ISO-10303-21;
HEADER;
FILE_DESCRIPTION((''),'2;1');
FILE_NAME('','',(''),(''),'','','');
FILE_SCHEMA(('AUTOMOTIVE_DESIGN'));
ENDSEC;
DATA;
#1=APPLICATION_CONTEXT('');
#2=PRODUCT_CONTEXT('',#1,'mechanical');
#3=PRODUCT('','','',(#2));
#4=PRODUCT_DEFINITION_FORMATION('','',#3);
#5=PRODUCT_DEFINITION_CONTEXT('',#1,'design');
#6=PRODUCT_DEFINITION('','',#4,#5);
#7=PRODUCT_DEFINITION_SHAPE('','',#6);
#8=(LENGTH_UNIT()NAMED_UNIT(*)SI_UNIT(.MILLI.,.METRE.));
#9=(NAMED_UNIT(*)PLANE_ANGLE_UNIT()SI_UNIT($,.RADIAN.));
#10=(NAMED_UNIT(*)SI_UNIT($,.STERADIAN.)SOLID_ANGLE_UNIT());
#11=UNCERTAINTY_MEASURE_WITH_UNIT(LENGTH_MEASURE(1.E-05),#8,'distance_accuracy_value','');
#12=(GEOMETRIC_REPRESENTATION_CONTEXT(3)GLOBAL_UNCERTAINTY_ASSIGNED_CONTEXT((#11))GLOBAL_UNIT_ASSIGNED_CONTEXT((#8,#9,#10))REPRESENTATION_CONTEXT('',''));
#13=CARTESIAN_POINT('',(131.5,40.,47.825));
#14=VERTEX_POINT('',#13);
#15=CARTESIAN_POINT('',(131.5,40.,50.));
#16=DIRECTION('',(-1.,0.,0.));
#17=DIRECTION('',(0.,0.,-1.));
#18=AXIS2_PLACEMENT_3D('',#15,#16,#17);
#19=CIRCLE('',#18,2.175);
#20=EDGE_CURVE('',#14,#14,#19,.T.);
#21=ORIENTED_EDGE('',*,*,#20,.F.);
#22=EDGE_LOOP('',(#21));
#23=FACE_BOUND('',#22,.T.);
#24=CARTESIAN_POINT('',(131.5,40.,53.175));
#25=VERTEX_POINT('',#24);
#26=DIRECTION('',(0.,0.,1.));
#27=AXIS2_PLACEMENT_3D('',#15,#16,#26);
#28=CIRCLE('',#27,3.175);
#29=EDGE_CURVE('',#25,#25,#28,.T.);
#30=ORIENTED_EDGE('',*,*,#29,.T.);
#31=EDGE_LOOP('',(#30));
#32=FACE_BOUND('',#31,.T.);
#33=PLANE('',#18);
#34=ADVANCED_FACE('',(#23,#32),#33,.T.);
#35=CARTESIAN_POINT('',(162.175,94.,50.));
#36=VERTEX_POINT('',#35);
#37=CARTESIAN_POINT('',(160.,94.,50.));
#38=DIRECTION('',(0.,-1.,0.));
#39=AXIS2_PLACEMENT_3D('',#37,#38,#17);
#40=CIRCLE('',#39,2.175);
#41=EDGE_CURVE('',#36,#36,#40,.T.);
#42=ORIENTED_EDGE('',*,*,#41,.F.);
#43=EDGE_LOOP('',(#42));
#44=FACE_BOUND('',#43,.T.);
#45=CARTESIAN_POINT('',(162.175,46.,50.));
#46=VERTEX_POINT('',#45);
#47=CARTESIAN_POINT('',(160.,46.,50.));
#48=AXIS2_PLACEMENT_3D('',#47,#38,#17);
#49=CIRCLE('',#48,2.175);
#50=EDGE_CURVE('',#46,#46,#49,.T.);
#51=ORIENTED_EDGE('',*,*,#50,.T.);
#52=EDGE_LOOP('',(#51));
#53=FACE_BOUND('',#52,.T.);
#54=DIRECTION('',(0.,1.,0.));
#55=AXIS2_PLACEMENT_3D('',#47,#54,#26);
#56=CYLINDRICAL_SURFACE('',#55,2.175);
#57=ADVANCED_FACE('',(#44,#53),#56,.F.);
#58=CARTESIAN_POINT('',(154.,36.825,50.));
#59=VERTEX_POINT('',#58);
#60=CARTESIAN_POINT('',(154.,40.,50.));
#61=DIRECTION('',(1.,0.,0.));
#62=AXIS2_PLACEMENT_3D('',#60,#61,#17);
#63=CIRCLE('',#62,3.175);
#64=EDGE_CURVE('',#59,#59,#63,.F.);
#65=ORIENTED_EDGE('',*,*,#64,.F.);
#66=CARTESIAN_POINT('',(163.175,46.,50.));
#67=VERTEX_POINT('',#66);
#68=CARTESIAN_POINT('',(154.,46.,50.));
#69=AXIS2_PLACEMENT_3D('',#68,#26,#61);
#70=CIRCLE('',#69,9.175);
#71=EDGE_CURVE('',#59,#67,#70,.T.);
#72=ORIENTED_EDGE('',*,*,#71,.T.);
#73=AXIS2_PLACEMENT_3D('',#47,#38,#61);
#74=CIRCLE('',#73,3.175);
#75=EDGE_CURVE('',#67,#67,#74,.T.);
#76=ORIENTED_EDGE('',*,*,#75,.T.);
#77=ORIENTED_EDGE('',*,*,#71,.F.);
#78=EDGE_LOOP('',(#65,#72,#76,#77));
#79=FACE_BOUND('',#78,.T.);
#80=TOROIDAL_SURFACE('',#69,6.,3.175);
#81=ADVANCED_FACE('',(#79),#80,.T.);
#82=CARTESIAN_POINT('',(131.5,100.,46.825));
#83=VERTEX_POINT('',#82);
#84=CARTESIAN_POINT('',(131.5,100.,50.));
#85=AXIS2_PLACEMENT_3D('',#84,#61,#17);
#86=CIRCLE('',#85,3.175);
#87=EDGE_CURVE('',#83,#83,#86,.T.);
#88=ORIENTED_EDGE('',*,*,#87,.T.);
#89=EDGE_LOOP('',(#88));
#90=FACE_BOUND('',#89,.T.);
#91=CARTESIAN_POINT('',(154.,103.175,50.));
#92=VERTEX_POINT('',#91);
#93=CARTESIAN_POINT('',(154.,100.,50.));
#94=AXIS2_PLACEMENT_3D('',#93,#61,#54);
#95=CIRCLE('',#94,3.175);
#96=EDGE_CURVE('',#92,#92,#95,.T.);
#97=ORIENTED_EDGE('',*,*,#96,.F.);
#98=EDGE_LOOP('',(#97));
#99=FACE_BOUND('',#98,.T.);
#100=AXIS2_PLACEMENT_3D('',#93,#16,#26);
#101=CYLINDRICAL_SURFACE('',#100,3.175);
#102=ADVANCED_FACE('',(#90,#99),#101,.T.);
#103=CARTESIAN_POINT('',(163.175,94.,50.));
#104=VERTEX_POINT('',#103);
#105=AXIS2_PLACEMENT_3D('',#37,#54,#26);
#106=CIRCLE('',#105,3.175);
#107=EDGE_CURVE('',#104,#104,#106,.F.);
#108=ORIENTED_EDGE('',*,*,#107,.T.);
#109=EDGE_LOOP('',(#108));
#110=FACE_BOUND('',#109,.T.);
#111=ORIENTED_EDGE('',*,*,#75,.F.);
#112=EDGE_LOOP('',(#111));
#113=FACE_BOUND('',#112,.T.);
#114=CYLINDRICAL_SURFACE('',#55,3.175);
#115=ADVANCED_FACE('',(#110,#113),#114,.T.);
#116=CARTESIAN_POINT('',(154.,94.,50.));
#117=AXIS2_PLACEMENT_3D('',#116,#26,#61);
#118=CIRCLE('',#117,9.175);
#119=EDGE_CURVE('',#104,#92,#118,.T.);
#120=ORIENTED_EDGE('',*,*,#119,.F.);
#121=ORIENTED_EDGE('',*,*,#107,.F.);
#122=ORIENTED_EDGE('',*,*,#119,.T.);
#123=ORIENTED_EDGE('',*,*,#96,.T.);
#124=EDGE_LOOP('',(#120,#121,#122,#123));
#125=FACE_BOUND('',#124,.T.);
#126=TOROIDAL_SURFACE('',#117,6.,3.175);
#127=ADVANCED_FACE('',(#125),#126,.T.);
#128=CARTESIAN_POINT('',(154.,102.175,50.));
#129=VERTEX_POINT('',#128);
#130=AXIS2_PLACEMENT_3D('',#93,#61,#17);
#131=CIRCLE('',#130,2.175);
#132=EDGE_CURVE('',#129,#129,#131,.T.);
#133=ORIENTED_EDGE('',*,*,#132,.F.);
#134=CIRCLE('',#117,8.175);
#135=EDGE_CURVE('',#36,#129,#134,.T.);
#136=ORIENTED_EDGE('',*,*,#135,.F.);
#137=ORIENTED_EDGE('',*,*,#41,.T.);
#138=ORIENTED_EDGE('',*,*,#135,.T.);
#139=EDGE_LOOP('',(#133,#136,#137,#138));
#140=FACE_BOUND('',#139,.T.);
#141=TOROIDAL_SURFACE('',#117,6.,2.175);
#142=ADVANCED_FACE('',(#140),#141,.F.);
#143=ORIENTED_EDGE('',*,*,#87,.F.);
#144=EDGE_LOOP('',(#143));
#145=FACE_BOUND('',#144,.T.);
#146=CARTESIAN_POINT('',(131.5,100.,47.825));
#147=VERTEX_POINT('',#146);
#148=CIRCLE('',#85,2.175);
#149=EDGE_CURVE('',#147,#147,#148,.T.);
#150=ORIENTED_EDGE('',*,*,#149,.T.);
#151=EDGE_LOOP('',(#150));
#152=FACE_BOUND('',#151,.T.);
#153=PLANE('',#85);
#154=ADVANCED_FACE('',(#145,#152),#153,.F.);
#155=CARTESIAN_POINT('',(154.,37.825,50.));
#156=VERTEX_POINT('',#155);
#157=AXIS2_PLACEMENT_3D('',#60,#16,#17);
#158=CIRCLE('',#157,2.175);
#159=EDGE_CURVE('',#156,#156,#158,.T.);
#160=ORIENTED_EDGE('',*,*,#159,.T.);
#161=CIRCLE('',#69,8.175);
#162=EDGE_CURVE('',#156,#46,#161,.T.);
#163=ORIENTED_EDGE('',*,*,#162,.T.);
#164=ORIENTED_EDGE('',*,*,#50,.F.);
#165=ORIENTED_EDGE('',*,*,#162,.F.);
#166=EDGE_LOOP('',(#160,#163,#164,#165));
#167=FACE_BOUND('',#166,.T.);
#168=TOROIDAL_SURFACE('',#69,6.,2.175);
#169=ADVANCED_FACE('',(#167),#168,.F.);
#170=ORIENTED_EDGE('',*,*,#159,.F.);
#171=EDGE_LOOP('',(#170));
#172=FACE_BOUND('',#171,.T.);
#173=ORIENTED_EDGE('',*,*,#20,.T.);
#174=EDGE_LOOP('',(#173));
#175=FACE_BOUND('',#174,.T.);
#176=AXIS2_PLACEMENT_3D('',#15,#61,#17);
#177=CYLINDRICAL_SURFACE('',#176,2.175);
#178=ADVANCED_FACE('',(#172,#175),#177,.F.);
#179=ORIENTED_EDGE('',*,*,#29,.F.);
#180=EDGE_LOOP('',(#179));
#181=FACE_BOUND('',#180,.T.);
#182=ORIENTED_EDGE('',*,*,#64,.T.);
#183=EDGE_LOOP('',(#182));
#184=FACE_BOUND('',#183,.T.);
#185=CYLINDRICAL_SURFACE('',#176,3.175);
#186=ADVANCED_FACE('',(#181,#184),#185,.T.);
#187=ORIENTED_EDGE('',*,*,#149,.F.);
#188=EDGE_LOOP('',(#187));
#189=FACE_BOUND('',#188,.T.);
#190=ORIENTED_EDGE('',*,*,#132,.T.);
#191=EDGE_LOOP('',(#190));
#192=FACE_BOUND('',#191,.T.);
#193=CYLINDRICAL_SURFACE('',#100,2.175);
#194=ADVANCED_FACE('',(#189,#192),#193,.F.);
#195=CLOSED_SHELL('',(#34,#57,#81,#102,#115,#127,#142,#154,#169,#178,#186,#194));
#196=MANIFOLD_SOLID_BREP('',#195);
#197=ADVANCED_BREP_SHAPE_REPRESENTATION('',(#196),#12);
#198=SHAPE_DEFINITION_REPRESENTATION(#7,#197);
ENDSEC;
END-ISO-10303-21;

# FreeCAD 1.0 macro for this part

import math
import FreeCAD as App
import Part
import Sketcher

V = App.Vector
Q = App.Units.Quantity

doc = App.newDocument("Part")
body = doc.addObject("PartDesign::Body", "Body")

# Sketch on YZ plane
sketch1 = body.newObject("Sketcher::SketchObject", "Sketch")
sketch1.AttachmentSupport = (doc.getObject("YZ_Plane"), [""])
sketch1.MapMode = "FlatFace"
sketch1.AttachmentOffset = App.Placement(V(0, 0, 131.5), App.Rotation())
sketch1.addGeometry([
    Part.Circle(V(40, 50, 0), V(0, 0, 1), 3.2),
    Part.Circle(V(40, 50, 0), V(0, 0, 1), 2.2),
], False)
sketch1.addConstraint([
    Sketcher.Constraint("Coincident", 1, 3, 0, 3),
    Sketcher.Constraint("Diameter", 0, Q("6.35 mm")),
    Sketcher.Constraint("Diameter", 1, Q("4.35 mm")),
    Sketcher.Constraint("DistanceX", -1, 1, 0, 3, Q("40 mm")),
    Sketcher.Constraint("DistanceY", -1, 1, 0, 3, Q("50 mm")),
])

# Sketch on XY plane
sketch2 = body.newObject("Sketcher::SketchObject", "Sketch001")
sketch2.AttachmentSupport = (doc.getObject("XY_Plane"), [""])
sketch2.MapMode = "FlatFace"
sketch2.AttachmentOffset = App.Placement(V(0, 0, 50), App.Rotation())
sketch2.addGeometry([
    Part.LineSegment(V(132, 40, 0), V(154, 40, 0)),  # 0
    Part.ArcOfCircle(Part.Circle(V(154, 46, 0), V(0, 0, 1), 6), math.radians(-90), math.radians(0)),  # 1
    Part.LineSegment(V(160, 46, 0), V(160, 94, 0)),  # 2
    Part.ArcOfCircle(Part.Circle(V(154, 94, 0), V(0, 0, 1), 6), math.radians(0), math.radians(90)),  # 3
    Part.LineSegment(V(154, 100, 0), V(132, 100, 0)),  # 4
], False)
sketch2.addConstraint([
    Sketcher.Constraint("Tangent", 0, 2, 1, 1),
    Sketcher.Constraint("Tangent", 1, 2, 2, 1),
    Sketcher.Constraint("Tangent", 2, 2, 3, 1),
    Sketcher.Constraint("Tangent", 3, 2, 4, 1),
    Sketcher.Constraint("Horizontal", 0),
    Sketcher.Constraint("Vertical", 2),
    Sketcher.Constraint("Horizontal", 4),
    Sketcher.Constraint("Equal", 1, 3),
    Sketcher.Constraint("Vertical", 0, 1, 4, 2),
    Sketcher.Constraint("Radius", 1, Q("6 mm")),
    Sketcher.Constraint("DistanceY", 2, 1, 2, 2, Q("48 mm")),
    Sketcher.Constraint("DistanceX", 0, 1, 0, 2, Q("22.5 mm")),
    Sketcher.Constraint("DistanceX", -1, 1, 1, 3, Q("154 mm")),
    Sketcher.Constraint("DistanceY", -1, 1, 1, 3, Q("46 mm")),
])
doc.recompute()

additivepipe = body.newObject("PartDesign::AdditivePipe", "AdditivePipe")
additivepipe.Profile = sketch1
additivepipe.Spine = (sketch2, ["Edge1", "Edge2", "Edge3", "Edge4", "Edge5"])

doc.recompute()
